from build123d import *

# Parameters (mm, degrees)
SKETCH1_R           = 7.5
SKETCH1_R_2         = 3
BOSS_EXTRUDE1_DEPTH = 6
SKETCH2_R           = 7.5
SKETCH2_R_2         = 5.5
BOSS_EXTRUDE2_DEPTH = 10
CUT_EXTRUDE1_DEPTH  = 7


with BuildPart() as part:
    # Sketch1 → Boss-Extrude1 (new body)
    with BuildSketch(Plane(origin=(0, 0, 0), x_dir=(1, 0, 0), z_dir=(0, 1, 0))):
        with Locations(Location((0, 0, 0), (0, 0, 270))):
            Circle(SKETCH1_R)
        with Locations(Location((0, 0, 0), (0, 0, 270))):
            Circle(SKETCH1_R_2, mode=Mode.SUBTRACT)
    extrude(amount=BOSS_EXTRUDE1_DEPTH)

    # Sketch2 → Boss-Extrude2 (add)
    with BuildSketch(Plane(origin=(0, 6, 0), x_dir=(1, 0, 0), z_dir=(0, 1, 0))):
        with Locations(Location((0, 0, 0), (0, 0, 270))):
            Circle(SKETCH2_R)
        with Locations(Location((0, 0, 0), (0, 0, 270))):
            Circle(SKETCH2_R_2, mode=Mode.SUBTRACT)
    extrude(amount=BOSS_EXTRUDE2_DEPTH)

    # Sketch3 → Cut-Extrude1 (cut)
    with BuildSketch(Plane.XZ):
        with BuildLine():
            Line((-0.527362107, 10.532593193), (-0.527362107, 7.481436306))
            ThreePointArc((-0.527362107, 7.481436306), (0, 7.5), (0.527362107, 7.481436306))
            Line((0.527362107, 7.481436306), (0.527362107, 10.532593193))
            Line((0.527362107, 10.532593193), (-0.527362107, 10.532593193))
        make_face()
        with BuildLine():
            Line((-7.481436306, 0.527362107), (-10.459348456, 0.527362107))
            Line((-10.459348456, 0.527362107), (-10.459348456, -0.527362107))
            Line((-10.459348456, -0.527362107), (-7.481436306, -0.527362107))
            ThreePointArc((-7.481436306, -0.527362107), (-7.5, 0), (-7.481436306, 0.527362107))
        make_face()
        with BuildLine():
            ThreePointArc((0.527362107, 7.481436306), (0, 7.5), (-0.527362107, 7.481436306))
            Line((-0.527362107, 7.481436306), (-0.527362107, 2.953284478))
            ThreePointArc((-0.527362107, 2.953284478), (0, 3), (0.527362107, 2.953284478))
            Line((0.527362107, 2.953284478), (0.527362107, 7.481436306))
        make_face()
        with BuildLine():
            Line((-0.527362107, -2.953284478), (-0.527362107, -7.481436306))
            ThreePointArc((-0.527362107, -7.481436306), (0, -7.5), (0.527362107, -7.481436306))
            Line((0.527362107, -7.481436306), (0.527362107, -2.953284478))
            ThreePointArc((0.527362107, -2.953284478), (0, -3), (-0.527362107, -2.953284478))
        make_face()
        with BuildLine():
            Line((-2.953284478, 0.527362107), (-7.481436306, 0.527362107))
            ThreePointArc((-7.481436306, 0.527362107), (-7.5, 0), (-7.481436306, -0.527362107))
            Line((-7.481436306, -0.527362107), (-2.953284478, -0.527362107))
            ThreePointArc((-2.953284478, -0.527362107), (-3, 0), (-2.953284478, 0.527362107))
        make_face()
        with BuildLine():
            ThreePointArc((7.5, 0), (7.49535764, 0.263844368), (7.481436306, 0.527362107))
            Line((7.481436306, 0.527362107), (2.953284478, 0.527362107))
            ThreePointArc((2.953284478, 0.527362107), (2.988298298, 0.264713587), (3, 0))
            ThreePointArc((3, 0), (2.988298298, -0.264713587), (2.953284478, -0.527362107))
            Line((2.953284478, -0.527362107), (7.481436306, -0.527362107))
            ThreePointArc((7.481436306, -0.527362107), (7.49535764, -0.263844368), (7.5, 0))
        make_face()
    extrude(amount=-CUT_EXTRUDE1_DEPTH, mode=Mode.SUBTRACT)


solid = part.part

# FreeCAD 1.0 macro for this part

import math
import FreeCAD as App
import Part
import Sketcher
from FreeCAD import Vector
Q = App.Units.Quantity

doc = App.newDocument("Part")
body = doc.addObject("PartDesign::Body", "Body")

# Sketch on XZ plane
sketch1 = body.newObject("Sketcher::SketchObject", "Sketch")
sketch1.AttachmentSupport = (doc.getObject("XZ_Plane"), [""])
sketch1.MapMode = "FlatFace"
sketch1.addGeometry(Part.Circle(Vector(0, 0, 0), Vector(0, 0, 1), 7.5), False)
sketch1.addGeometry(Part.Circle(Vector(0, 0, 0), Vector(0, 0, 1), 3), False)
sketch1.addConstraint(Sketcher.Constraint("Coincident", 0, 3, -1, 1))
sketch1.addConstraint(Sketcher.Constraint("Coincident", 1, 3, -1, 1))
sketch1.addConstraint(Sketcher.Constraint("Diameter", 0, Q("15 mm")))
sketch1.addConstraint(Sketcher.Constraint("Diameter", 1, Q("6 mm")))
pad1 = body.newObject("PartDesign::Pad", "Pad")
pad1.Profile = sketch1
pad1.Length = 6
pad1.Reversed = True

# Sketch on XZ plane
sketch2 = body.newObject("Sketcher::SketchObject", "Sketch001")
sketch2.AttachmentSupport = (doc.getObject("XZ_Plane"), [""])
sketch2.MapMode = "FlatFace"
sketch2.AttachmentOffset = App.Placement(Vector(0, 0, -6), App.Rotation())
sketch2.addGeometry(Part.Circle(Vector(0, 0, 0), Vector(0, 0, 1), 8), False)
sketch2.addGeometry(Part.Circle(Vector(0, 0, 0), Vector(0, 0, 1), 6), False)
sketch2.addConstraint(Sketcher.Constraint("Coincident", 0, 3, -1, 1))
sketch2.addConstraint(Sketcher.Constraint("Coincident", 1, 3, -1, 1))
sketch2.addConstraint(Sketcher.Constraint("Diameter", 0, Q("15 mm")))
sketch2.addConstraint(Sketcher.Constraint("Diameter", 1, Q("11 mm")))
pad2 = body.newObject("PartDesign::Pad", "Pad001")
pad2.Profile = sketch2
pad2.Length = 10
pad2.Reversed = True

# Sketch on XZ plane
sketch3 = body.newObject("Sketcher::SketchObject", "Sketch002")
sketch3.AttachmentSupport = (doc.getObject("XZ_Plane"), [""])
sketch3.MapMode = "FlatFace"
sketch3.addGeometry(Part.LineSegment(Vector(0.5, 10.5, 0), Vector(-0.5, 10.5, 0)), False)
sketch3.addGeometry(Part.LineSegment(Vector(-0.5, 10.5, 0), Vector(-0.5, 3, 0)), False)
sketch3.addGeometry(Part.ArcOfCircle(Part.Circle(Vector(0, 0, 0), Vector(0, 0, 1), 3), math.radians(80), math.radians(100)), False)
sketch3.addGeometry(Part.LineSegment(Vector(0.5, 3, 0), Vector(0.5, 10.5, 0)), False)
sketch3.addGeometry(Part.LineSegment(Vector(-10.5, 0.5, 0), Vector(-10.5, -0.5, 0)), False)
sketch3.addGeometry(Part.LineSegment(Vector(-10.5, -0.5, 0), Vector(-3, -0.5, 0)), False)
sketch3.addGeometry(Part.ArcOfCircle(Part.Circle(Vector(0, 0, 0), Vector(0, 0, 1), 3), math.radians(170), math.radians(190)), False)
sketch3.addGeometry(Part.LineSegment(Vector(-3, 0.5, 0), Vector(-10.5, 0.5, 0)), False)
sketch3.addGeometry(Part.LineSegment(Vector(-0.5, -3, 0), Vector(-0.5, -7.5, 0)), False)
sketch3.addGeometry(Part.ArcOfCircle(Part.Circle(Vector(0, 0, 0), Vector(0, 0, 1), 7.5), math.radians(-94.03), math.radians(-85.97)), False)
sketch3.addGeometry(Part.LineSegment(Vector(0.5, -7.5, 0), Vector(0.5, -3, 0)), False)
sketch3.addGeometry(Part.ArcOfCircle(Part.Circle(Vector(0, 0, 0), Vector(0, 0, 1), 3), math.radians(-100), math.radians(-80)), False)
sketch3.addGeometry(Part.ArcOfCircle(Part.Circle(Vector(0, 0, 0), Vector(0, 0, 1), 7.5), math.radians(0), math.radians(4.03)), False)
sketch3.addGeometry(Part.LineSegment(Vector(7.5, 0.5, 0), Vector(3, 0.5, 0)), False)
sketch3.addGeometry(Part.ArcOfCircle(Part.Circle(Vector(0, 0, 0), Vector(0, 0, 1), 3), math.radians(0), math.radians(10.12)), False)
sketch3.addGeometry(Part.ArcOfCircle(Part.Circle(Vector(0, 0, 0), Vector(0, 0, 1), 3), math.radians(-10.12), math.radians(0)), False)
sketch3.addGeometry(Part.LineSegment(Vector(3, -0.5, 0), Vector(7.5, -0.5, 0)), False)
sketch3.addGeometry(Part.ArcOfCircle(Part.Circle(Vector(0, 0, 0), Vector(0, 0, 1), 7.5), math.radians(-4.03), math.radians(0)), False)
sketch3.addConstraint(Sketcher.Constraint("Coincident", 0, 2, 1, 1))
sketch3.addConstraint(Sketcher.Constraint("Coincident", 1, 2, 2, 2))
sketch3.addConstraint(Sketcher.Constraint("Coincident", 2, 1, 3, 1))
sketch3.addConstraint(Sketcher.Constraint("Coincident", 3, 2, 0, 1))
sketch3.addConstraint(Sketcher.Constraint("Coincident", 4, 2, 5, 1))
sketch3.addConstraint(Sketcher.Constraint("Coincident", 5, 2, 6, 2))
sketch3.addConstraint(Sketcher.Constraint("Coincident", 6, 1, 7, 1))
sketch3.addConstraint(Sketcher.Constraint("Coincident", 7, 2, 4, 1))
sketch3.addConstraint(Sketcher.Constraint("Coincident", 8, 2, 9, 1))
sketch3.addConstraint(Sketcher.Constraint("Coincident", 9, 2, 10, 1))
sketch3.addConstraint(Sketcher.Constraint("Coincident", 10, 2, 11, 2))
sketch3.addConstraint(Sketcher.Constraint("Coincident", 11, 1, 8, 1))
sketch3.addConstraint(Sketcher.Constraint("Coincident", 12, 2, 13, 1))
sketch3.addConstraint(Sketcher.Constraint("Coincident", 13, 2, 14, 2))
sketch3.addConstraint(Sketcher.Constraint("Tangent", 14, 1, 15, 2))
sketch3.addConstraint(Sketcher.Constraint("Coincident", 15, 1, 16, 1))
sketch3.addConstraint(Sketcher.Constraint("Coincident", 16, 2, 17, 1))
sketch3.addConstraint(Sketcher.Constraint("Tangent", 17, 2, 12, 1))
sketch3.addConstraint(Sketcher.Constraint("Horizontal", 0))
sketch3.addConstraint(Sketcher.Constraint("Vertical", 1))
sketch3.addConstraint(Sketcher.Constraint("Vertical", 3))
sketch3.addConstraint(Sketcher.Constraint("Vertical", 4))
sketch3.addConstraint(Sketcher.Constraint("Horizontal", 5))
sketch3.addConstraint(Sketcher.Constraint("Horizontal", 7))
sketch3.addConstraint(Sketcher.Constraint("Vertical", 8))
sketch3.addConstraint(Sketcher.Constraint("Vertical", 10))
sketch3.addConstraint(Sketcher.Constraint("Horizontal", 13))
sketch3.addConstraint(Sketcher.Constraint("Horizontal", 16))
sketch3.addConstraint(Sketcher.Constraint("Coincident", 2, 3, -1, 1))
sketch3.addConstraint(Sketcher.Constraint("Coincident", 6, 3, -1, 1))
sketch3.addConstraint(Sketcher.Constraint("Coincident", 9, 3, -1, 1))
sketch3.addConstraint(Sketcher.Constraint("Coincident", 11, 3, -1, 1))
sketch3.addConstraint(Sketcher.Constraint("Coincident", 12, 3, -1, 1))
sketch3.addConstraint(Sketcher.Constraint("Coincident", 14, 3, -1, 1))
sketch3.addConstraint(Sketcher.Constraint("Equal", 2, 6))
sketch3.addConstraint(Sketcher.Constraint("Equal", 6, 11))
sketch3.addConstraint(Sketcher.Constraint("Equal", 9, 12))
sketch3.addConstraint(Sketcher.Constraint("Equal", 11, 14))
sketch3.addConstraint(Sketcher.Constraint("Equal", 14, 15))
sketch3.addConstraint(Sketcher.Constraint("Equal", 12, 17))
sketch3.addConstraint(Sketcher.Constraint("PointOnObject", 14, 1, -1))
sketch3.addConstraint(Sketcher.Constraint("PointOnObject", 17, 2, -1))
sketch3.addConstraint(Sketcher.Constraint("Horizontal", 1, 2, 2, 1))
sketch3.addConstraint(Sketcher.Constraint("Horizontal", 8, 2, 9, 2))
sketch3.addConstraint(Sketcher.Constraint("Horizontal", 7, 2, 12, 2))
sketch3.addConstraint(Sketcher.Constraint("Horizontal", 5, 2, 15, 1))
sketch3.addConstraint(Sketcher.Constraint("Vertical", 5, 2, 6, 1))
sketch3.addConstraint(Sketcher.Constraint("Vertical", 1, 2, 8, 2))
sketch3.addConstraint(Sketcher.Constraint("Equal", 0, 4))
sketch3.addConstraint(Sketcher.Constraint("Radius", 2, Q("3 mm")))
sketch3.addConstraint(Sketcher.Constraint("Radius", 9, Q("7.5 mm")))
sketch3.addConstraint(Sketcher.Constraint("DistanceX", 13, 2, 13, 1, Q("4.528152 mm")))
sketch3.addConstraint(Sketcher.Constraint("DistanceY", 1, 2, 1, 1, Q("7.579309 mm")))
sketch3.addConstraint(Sketcher.Constraint("DistanceX", 5, 1, 5, 2, Q("7.506064 mm")))
pocket1 = body.newObject("PartDesign::Pocket", "Pocket")
pocket1.Profile = sketch3
pocket1.Length = 7

doc.recompute()
